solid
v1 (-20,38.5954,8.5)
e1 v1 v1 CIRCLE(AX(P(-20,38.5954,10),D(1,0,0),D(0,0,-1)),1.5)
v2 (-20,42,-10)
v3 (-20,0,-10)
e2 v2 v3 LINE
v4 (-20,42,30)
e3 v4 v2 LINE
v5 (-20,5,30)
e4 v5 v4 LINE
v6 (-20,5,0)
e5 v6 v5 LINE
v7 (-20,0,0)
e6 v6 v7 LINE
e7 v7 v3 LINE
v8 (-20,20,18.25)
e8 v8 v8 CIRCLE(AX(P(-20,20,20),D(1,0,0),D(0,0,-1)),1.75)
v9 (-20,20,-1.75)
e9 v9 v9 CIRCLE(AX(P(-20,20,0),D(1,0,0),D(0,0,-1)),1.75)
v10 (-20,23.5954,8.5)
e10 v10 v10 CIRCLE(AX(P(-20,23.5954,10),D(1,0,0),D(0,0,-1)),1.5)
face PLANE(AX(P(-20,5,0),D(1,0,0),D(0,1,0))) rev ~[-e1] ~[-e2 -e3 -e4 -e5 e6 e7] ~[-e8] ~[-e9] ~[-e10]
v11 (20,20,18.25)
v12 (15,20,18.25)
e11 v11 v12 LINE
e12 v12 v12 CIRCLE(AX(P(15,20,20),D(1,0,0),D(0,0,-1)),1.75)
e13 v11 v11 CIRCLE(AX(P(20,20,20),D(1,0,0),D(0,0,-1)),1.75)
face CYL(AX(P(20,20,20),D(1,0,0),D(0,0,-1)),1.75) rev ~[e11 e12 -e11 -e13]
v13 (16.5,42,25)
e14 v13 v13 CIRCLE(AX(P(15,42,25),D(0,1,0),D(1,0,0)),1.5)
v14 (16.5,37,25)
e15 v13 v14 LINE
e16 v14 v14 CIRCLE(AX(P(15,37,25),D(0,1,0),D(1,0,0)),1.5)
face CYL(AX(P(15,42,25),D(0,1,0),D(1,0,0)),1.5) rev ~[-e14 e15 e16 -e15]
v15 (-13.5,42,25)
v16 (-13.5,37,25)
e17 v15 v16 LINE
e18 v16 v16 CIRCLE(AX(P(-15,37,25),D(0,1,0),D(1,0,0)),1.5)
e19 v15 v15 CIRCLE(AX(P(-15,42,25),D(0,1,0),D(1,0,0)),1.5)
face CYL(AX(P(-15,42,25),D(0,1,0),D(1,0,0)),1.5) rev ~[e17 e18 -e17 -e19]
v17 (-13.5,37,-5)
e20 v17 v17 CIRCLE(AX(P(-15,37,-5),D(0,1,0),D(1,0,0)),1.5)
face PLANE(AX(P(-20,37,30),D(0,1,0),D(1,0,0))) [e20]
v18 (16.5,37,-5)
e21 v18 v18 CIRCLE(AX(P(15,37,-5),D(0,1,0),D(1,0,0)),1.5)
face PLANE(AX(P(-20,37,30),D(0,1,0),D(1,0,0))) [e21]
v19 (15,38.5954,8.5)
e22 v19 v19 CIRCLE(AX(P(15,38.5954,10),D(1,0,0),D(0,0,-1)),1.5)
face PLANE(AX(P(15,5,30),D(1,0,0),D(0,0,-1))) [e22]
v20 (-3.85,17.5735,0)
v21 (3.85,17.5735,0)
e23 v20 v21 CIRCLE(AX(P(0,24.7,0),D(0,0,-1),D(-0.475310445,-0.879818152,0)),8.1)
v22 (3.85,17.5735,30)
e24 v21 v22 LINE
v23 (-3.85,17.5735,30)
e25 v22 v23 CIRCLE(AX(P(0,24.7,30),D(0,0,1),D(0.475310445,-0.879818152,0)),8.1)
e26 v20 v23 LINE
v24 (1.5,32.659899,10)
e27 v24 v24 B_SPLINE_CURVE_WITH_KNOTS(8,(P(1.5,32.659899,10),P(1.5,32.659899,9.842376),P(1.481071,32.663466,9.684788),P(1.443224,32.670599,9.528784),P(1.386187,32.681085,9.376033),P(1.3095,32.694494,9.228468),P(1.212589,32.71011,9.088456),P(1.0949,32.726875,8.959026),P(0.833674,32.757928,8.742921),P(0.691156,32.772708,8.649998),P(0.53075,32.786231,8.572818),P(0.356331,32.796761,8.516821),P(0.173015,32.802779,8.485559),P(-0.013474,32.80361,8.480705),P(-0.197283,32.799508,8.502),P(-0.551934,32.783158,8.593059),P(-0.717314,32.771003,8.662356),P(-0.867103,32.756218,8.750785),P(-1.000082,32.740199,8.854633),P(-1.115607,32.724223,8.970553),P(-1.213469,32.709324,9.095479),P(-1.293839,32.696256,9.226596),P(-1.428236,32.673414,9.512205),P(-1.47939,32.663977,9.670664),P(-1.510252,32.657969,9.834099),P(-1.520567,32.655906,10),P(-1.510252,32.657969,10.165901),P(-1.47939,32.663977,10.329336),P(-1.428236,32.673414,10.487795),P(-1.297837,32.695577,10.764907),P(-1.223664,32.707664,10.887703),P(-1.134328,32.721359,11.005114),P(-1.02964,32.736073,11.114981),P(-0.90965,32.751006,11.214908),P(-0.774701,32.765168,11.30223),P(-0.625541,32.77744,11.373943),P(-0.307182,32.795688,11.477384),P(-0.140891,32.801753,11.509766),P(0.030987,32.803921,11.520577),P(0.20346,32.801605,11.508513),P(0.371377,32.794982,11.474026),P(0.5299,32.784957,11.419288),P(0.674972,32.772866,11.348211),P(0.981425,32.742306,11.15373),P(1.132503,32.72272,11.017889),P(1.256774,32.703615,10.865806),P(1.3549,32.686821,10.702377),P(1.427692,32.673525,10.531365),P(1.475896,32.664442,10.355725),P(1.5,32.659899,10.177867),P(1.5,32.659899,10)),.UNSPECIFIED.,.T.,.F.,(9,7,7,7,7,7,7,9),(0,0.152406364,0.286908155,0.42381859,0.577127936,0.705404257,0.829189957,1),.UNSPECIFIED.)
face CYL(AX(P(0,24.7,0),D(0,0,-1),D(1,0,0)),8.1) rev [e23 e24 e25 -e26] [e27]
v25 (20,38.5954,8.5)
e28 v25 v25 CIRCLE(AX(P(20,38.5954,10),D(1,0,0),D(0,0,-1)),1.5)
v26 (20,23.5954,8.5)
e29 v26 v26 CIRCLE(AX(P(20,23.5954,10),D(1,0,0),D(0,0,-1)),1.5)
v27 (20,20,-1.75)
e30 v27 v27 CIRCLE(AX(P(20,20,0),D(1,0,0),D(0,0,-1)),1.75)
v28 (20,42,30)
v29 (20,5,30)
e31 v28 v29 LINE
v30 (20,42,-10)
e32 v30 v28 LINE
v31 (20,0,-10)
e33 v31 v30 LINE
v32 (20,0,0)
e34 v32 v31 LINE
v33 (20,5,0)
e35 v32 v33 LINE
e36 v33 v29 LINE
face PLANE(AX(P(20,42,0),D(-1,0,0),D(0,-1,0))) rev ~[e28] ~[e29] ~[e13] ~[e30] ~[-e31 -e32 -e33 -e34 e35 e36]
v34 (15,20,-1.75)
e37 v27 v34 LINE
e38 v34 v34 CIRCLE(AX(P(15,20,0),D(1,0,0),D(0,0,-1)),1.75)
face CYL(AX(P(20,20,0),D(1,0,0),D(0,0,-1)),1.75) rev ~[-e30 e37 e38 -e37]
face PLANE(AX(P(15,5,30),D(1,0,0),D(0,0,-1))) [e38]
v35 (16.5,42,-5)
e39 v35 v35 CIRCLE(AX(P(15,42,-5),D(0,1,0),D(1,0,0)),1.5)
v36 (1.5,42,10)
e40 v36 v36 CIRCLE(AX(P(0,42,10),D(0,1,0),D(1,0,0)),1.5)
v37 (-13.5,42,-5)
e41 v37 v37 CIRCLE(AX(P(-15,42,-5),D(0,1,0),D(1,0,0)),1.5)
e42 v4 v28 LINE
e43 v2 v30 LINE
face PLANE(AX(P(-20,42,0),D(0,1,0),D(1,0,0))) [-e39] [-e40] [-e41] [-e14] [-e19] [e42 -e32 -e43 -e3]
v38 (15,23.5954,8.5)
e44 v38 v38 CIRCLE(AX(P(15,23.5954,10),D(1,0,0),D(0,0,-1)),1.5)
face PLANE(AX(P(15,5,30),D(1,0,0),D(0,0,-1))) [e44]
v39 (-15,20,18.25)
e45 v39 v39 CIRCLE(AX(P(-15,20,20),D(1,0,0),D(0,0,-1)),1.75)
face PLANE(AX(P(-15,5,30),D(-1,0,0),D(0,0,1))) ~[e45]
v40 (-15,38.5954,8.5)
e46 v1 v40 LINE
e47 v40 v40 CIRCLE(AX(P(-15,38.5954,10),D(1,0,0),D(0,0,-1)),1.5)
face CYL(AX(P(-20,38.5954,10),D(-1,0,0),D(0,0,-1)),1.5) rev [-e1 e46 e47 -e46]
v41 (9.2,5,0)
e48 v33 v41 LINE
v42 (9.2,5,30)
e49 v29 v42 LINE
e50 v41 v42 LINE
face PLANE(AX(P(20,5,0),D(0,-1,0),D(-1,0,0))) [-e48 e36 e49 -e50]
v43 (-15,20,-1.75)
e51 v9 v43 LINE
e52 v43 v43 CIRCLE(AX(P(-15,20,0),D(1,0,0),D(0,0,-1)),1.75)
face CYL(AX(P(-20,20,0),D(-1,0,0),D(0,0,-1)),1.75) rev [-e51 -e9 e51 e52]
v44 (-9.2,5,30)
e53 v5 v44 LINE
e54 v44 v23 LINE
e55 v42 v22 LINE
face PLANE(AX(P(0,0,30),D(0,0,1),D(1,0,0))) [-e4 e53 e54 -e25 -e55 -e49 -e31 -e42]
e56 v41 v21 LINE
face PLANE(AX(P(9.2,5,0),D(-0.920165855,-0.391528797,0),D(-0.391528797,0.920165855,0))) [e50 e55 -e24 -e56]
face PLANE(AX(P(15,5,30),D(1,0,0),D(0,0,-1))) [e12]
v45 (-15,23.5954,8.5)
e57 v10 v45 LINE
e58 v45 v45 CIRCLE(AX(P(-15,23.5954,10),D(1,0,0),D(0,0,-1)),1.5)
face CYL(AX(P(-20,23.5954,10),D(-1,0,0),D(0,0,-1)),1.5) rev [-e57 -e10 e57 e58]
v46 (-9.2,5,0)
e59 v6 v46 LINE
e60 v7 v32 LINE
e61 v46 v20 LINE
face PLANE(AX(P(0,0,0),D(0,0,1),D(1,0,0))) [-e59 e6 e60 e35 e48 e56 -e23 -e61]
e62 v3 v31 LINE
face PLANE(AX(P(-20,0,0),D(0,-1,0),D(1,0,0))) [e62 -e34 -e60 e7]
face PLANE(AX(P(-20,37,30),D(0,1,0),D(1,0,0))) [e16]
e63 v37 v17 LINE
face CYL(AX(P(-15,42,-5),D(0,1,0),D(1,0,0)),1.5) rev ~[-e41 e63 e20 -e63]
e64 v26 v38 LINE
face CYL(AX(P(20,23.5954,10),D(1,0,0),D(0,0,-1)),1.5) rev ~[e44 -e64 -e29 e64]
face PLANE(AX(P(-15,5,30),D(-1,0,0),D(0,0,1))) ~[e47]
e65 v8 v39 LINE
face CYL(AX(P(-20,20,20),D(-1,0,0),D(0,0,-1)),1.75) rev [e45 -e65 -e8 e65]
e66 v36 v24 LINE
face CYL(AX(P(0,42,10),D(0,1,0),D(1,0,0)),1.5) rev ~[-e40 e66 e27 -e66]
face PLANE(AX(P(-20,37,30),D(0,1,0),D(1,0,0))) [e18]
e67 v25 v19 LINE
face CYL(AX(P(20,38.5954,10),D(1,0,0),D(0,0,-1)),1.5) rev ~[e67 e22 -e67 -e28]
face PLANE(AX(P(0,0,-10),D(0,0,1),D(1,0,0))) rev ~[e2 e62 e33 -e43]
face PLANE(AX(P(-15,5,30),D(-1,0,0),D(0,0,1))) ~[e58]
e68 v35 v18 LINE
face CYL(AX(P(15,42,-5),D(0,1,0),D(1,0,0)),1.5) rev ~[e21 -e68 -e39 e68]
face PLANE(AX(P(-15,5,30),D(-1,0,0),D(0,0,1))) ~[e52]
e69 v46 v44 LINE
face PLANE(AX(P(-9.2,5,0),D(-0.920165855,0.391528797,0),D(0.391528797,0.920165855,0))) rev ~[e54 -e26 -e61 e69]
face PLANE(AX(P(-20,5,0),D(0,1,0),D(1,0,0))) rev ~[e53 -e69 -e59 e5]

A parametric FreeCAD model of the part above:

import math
import FreeCAD as App
import Part
import Sketcher


def add_polygon(sketch, points):
    """Adds a closed chain of lines whose ends are joined by coincident constraints."""
    first, n = sketch.GeometryCount, len(points)
    for a, b in zip(points, points[1:] + points[:1]):
        sketch.addGeometry(Part.LineSegment(App.Vector(*a, 0), App.Vector(*b, 0)), False)
    for i in range(n):
        sketch.addConstraint(Sketcher.Constraint("Coincident", first + i, 2, first + (i + 1) % n, 1))

doc = App.newDocument("Part")
body = doc.addObject("PartDesign::Body", "Body")

sketch1 = body.newObject("Sketcher::SketchObject", "Sketch")
sketch1.AttachmentSupport = (doc.getObject("XY_Plane"), [""])
sketch1.MapMode = "FlatFace"
sketch1.addGeometry(Part.ArcOfCircle(Part.Circle(App.Vector(0, 25, 0), App.Vector(0, 0, 1), 8), math.radians(-62), math.radians(242)), False)
sketch1.addGeometry(Part.LineSegment(App.Vector(4, 18, 0), App.Vector(9, 5, 0)), False)
sketch1.addGeometry(Part.LineSegment(App.Vector(9, 5, 0), App.Vector(20, 5, 0)), False)
sketch1.addGeometry(Part.LineSegment(App.Vector(20, 5, 0), App.Vector(20, 42, 0)), False)
sketch1.addGeometry(Part.LineSegment(App.Vector(20, 42, 0), App.Vector(-20, 42, 0)), False)
sketch1.addGeometry(Part.LineSegment(App.Vector(-20, 42, 0), App.Vector(-20, 5, 0)), False)
sketch1.addGeometry(Part.LineSegment(App.Vector(-20, 5, 0), App.Vector(-9, 5, 0)), False)
sketch1.addGeometry(Part.LineSegment(App.Vector(-9, 5, 0), App.Vector(-4, 18, 0)), False)
sketch1.addConstraint(Sketcher.Constraint("Coincident", 0, 1, 1, 1))
sketch1.addConstraint(Sketcher.Constraint("Coincident", 1, 2, 2, 1))
sketch1.addConstraint(Sketcher.Constraint("Coincident", 2, 2, 3, 1))
sketch1.addConstraint(Sketcher.Constraint("Coincident", 3, 2, 4, 1))
sketch1.addConstraint(Sketcher.Constraint("Coincident", 4, 2, 5, 1))
sketch1.addConstraint(Sketcher.Constraint("Coincident", 5, 2, 6, 1))
sketch1.addConstraint(Sketcher.Constraint("Coincident", 6, 2, 7, 1))
sketch1.addConstraint(Sketcher.Constraint("Coincident", 7, 2, 0, 2))
sketch1.addConstraint(Sketcher.Constraint("Horizontal", 2))
sketch1.addConstraint(Sketcher.Constraint("Vertical", 3))
sketch1.addConstraint(Sketcher.Constraint("Horizontal", 4))
sketch1.addConstraint(Sketcher.Constraint("Vertical", 5))
sketch1.addConstraint(Sketcher.Constraint("Horizontal", 6))
sketch1.addConstraint(Sketcher.Constraint("Symmetric", 2, 2, 5, 2, -2))
sketch1.addConstraint(Sketcher.Constraint("Symmetric", 0, 1, 7, 2, -2))
sketch1.addConstraint(Sketcher.Constraint("Equal", 2, 6))
sketch1.addConstraint(Sketcher.Constraint("Radius", 0, 8.1))
sketch1.addConstraint(Sketcher.Constraint("DistanceX", 4, 2, 4, 1, 40.0))
sketch1.addConstraint(Sketcher.Constraint("DistanceY", -1, 1, 1, 2, 5.0))
sketch1.addConstraint(Sketcher.Constraint("DistanceY", -1, 1, 3, 2, 42.0))
sketch1.addConstraint(Sketcher.Constraint("DistanceY", 1, 2, 0, 3, 19.7))
sketch1.addConstraint(Sketcher.Constraint("DistanceX", 6, 2, 1, 2, 18.4))
sketch1.addConstraint(Sketcher.Constraint("DistanceX", 7, 2, 0, 1, 7.7))
pad1 = body.newObject("PartDesign::Pad", "Pad")
pad1.Profile = sketch1
pad1.Length = 30

sketch2 = body.newObject("Sketcher::SketchObject", "Sketch001")
sketch2.AttachmentSupport = (doc.getObject("XY_Plane"), [""])
sketch2.MapMode = "FlatFace"
add_polygon(sketch2, [(-20, 42), (-20, 0), (20, 0), (20, 42)])
sketch2.addConstraint(Sketcher.Constraint("Vertical", 0))
sketch2.addConstraint(Sketcher.Constraint("Horizontal", 1))
sketch2.addConstraint(Sketcher.Constraint("Vertical", 2))
sketch2.addConstraint(Sketcher.Constraint("Horizontal", 3))
sketch2.addConstraint(Sketcher.Constraint("Symmetric", 0, 2, 1, 2, -1, 1))
sketch2.addConstraint(Sketcher.Constraint("DistanceX", 1, 1, 1, 2, 40.0))
sketch2.addConstraint(Sketcher.Constraint("DistanceY", 0, 2, 0, 1, 42.0))
pad2 = body.newObject("PartDesign::Pad", "Pad001")
pad2.Profile = sketch2
pad2.Length = 10
pad2.Reversed = True

sketch3 = body.newObject("Sketcher::SketchObject", "Sketch002")
sketch3.AttachmentSupport = (doc.getObject("XZ_Plane"), [""])
sketch3.MapMode = "FlatFace"
sketch3.AttachmentOffset = App.Placement(App.Vector(0, 0, -42), App.Rotation())
sketch3.addGeometry(Part.Circle(App.Vector(15, 25, 0), App.Vector(0, 0, 1), 1.5), False)
sketch3.addGeometry(Part.Circle(App.Vector(-15, 25, 0), App.Vector(0, 0, 1), 1.5), False)
sketch3.addGeometry(Part.Circle(App.Vector(-15, -5, 0), App.Vector(0, 0, 1), 1.5), False)
sketch3.addGeometry(Part.Circle(App.Vector(15, -5, 0), App.Vector(0, 0, 1), 1.5), False)
sketch3.addConstraint(Sketcher.Constraint("Equal", 0, 1))
sketch3.addConstraint(Sketcher.Constraint("Equal", 1, 2))
sketch3.addConstraint(Sketcher.Constraint("Equal", 2, 3))
sketch3.addConstraint(Sketcher.Constraint("Symmetric", 0, 3, 1, 3, -2))
sketch3.addConstraint(Sketcher.Constraint("Symmetric", 2, 3, 3, 3, -2))
sketch3.addConstraint(Sketcher.Constraint("Vertical", 1, 3, 2, 3))
sketch3.addConstraint(Sketcher.Constraint("Diameter", 0, 3.0))
sketch3.addConstraint(Sketcher.Constraint("DistanceX", 1, 3, 0, 3, 30.0))
sketch3.addConstraint(Sketcher.Constraint("DistanceY", 2, 3, 1, 3, 30.0))
sketch3.addConstraint(Sketcher.Constraint("DistanceY", -1, 1, 0, 3, 25.0))
pocket1 = body.newObject("PartDesign::Pocket", "Pocket")
pocket1.Profile = sketch3
pocket1.Length = 5
pocket1.Reversed = True

sketch4 = body.newObject("Sketcher::SketchObject", "Sketch003")
sketch4.AttachmentSupport = (doc.getObject("XZ_Plane"), [""])
sketch4.MapMode = "FlatFace"
sketch4.AttachmentOffset = App.Placement(App.Vector(0, 0, -42), App.Rotation())
sketch4.addGeometry(Part.Circle(App.Vector(0, 10, 0), App.Vector(0, 0, 1), 1.5), False)
sketch4.addConstraint(Sketcher.Constraint("PointOnObject", 0, 3, -2))
sketch4.addConstraint(Sketcher.Constraint("Diameter", 0, 3.0))
sketch4.addConstraint(Sketcher.Constraint("DistanceY", -1, 1, 0, 3, 10.0))
pocket2 = body.newObject("PartDesign::Pocket", "Pocket001")
pocket2.Profile = sketch4
pocket2.Type = "ThroughAll"
pocket2.Reversed = True

sketch5 = body.newObject("Sketcher::SketchObject", "Sketch004")
sketch5.AttachmentSupport = (doc.getObject("YZ_Plane"), [""])
sketch5.MapMode = "FlatFace"
sketch5.AttachmentOffset = App.Placement(App.Vector(0, 0, 20), App.Rotation())
sketch5.addGeometry(Part.Circle(App.Vector(20, 20, 0), App.Vector(0, 0, 1), 1.8), False)
sketch5.addGeometry(Part.Circle(App.Vector(20, 0, 0), App.Vector(0, 0, 1), 1.8), False)
sketch5.addGeometry(Part.Circle(App.Vector(38.6, 10, 0), App.Vector(0, 0, 1), 1.5), False)
sketch5.addGeometry(Part.Circle(App.Vector(23.6, 10, 0), App.Vector(0, 0, 1), 1.5), False)
sketch5.addConstraint(Sketcher.Constraint("Equal", 0, 1))
sketch5.addConstraint(Sketcher.Constraint("Equal", 2, 3))
sketch5.addConstraint(Sketcher.Constraint("PointOnObject", 1, 3, -1))
sketch5.addConstraint(Sketcher.Constraint("Horizontal", 2, 3, 3, 3))
sketch5.addConstraint(Sketcher.Constraint("Vertical", 0, 3, 1, 3))
sketch5.addConstraint(Sketcher.Constraint("Diameter", 2, 3.0))
sketch5.addConstraint(Sketcher.Constraint("Diameter", 0, 3.5))
sketch5.addConstraint(Sketcher.Constraint("DistanceX", -1, 1, 0, 3, 20.0))
sketch5.addConstraint(Sketcher.Constraint("DistanceY", -1, 1, 0, 3, 20.0))
sketch5.addConstraint(Sketcher.Constraint("DistanceX", 3, 3, 2, 3, 15.0))
sketch5.addConstraint(Sketcher.Constraint("DistanceY", -1, 1, 2, 3, 10.0))
sketch5.addConstraint(Sketcher.Constraint("DistanceX", -1, 1, 2, 3, 38.5954))
pocket3 = body.newObject("PartDesign::Pocket", "Pocket002")
pocket3.Profile = sketch5
pocket3.Length = 5
doc.recompute()

mirrored = body.newObject("PartDesign::Mirrored", "Mirrored")
mirrored.Originals = [pocket3]
mirrored.MirrorPlane = (doc.getObject("YZ_Plane"), [""])
body.Tip = mirrored

doc.recompute()
